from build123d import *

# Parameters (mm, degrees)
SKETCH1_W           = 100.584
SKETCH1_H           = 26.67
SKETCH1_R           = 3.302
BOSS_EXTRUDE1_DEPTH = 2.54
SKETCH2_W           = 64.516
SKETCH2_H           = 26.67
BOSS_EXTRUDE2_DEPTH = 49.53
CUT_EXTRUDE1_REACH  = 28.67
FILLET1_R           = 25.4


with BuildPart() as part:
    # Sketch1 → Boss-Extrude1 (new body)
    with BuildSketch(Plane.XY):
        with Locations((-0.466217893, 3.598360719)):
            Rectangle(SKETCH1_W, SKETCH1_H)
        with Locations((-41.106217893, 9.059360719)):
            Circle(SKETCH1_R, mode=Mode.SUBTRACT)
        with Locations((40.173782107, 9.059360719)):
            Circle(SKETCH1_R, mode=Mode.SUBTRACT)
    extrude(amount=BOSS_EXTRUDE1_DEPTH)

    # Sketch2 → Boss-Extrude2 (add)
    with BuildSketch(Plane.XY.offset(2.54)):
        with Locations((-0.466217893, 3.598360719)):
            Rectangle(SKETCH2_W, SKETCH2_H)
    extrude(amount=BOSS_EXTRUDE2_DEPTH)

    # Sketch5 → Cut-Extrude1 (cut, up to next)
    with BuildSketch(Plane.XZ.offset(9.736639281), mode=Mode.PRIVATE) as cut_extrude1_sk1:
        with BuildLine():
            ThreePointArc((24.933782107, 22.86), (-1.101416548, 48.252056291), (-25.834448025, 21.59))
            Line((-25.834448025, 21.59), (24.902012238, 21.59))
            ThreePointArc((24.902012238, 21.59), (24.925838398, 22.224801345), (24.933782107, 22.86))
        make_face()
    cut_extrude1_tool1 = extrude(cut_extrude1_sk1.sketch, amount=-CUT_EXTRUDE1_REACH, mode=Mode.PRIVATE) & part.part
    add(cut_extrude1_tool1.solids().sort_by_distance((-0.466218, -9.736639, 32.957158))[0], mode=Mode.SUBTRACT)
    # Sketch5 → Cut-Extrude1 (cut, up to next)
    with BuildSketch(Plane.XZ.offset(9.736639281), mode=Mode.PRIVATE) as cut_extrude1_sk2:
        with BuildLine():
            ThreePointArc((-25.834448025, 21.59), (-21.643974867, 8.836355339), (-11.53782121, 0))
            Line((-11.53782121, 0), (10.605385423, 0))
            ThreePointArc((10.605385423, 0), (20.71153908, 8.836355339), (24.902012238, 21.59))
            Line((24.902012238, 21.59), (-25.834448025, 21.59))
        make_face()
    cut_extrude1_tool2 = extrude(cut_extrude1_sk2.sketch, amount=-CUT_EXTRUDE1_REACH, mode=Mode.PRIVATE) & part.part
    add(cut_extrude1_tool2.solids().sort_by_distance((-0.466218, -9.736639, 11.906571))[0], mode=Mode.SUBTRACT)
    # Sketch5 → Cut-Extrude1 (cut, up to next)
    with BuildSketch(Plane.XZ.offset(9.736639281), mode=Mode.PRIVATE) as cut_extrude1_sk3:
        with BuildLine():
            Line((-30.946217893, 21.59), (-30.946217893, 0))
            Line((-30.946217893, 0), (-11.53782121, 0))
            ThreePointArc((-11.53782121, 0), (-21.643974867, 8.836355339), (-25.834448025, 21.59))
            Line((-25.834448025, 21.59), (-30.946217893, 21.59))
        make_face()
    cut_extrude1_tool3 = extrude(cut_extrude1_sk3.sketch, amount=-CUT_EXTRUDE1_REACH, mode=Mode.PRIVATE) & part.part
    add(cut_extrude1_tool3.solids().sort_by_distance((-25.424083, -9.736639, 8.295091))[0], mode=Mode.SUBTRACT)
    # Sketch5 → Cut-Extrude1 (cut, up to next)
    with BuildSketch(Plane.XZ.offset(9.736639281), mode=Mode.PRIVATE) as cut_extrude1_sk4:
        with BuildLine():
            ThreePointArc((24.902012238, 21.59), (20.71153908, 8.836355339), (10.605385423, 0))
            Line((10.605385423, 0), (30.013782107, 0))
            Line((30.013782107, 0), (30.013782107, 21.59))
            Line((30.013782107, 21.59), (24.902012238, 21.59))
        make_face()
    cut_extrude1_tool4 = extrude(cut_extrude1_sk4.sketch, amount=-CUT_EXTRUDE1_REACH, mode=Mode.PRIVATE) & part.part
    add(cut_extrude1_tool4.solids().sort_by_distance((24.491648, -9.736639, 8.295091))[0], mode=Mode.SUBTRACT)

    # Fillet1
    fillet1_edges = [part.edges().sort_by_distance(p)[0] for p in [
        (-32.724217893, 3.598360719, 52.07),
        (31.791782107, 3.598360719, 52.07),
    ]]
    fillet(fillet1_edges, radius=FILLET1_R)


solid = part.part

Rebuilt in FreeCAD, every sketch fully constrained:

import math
import FreeCAD as App
import Part
import Sketcher

V = App.Vector
Q = App.Units.Quantity


def edges_at(feature, points):
    """Names of the edges that pass closest to the given points."""
    edges = feature.Shape.Edges
    near = lambda p: min(range(len(edges)), key=lambda i: edges[i].distToShape(Part.Vertex(*p))[0])
    return sorted({f"Edge{near(p) + 1}" for p in points})


def add_polygon(sketch, points):
    """Adds a closed chain of lines whose ends are joined by coincident constraints."""
    first, n = sketch.GeometryCount, len(points)
    for a, b in zip(points, points[1:] + points[:1]):
        sketch.addGeometry(Part.LineSegment(App.Vector(*a, 0), App.Vector(*b, 0)), False)
    for i in range(n):
        sketch.addConstraint(Sketcher.Constraint("Coincident", first + i, 2, first + (i + 1) % n, 1))

doc = App.newDocument("Part")
body = doc.addObject("PartDesign::Body", "Body")

# Sketch on XY plane
sketch1 = body.newObject("Sketcher::SketchObject", "Sketch")
sketch1.AttachmentSupport = (doc.getObject("XY_Plane"), [""])
sketch1.MapMode = "FlatFace"
add_polygon(sketch1, [(-50.8, 16.9), (-50.8, -9.7), (49.8, -9.7), (49.8, 16.9)])  # lines 0-3
sketch1.addGeometry(Part.Circle(V(-41.1, 9.1, 0), V(0, 0, 1), 3.3), False)  # 4
sketch1.addGeometry(Part.Circle(V(40.2, 9.1, 0), V(0, 0, 1), 3.3), False)  # 5
sketch1.addConstraint([
    Sketcher.Constraint("Vertical", 0),
    Sketcher.Constraint("Horizontal", 1),
    Sketcher.Constraint("Vertical", 2),
    Sketcher.Constraint("Horizontal", 3),
    Sketcher.Constraint("Equal", 4, 5),
    Sketcher.Constraint("Horizontal", 4, 3, 5, 3),
    Sketcher.Constraint("Diameter", 4, Q("0.26 in")),
    Sketcher.Constraint("DistanceX", 1, 1, 1, 2, Q("3.96 in")),
    Sketcher.Constraint("DistanceY", 0, 2, 0, 1, Q("1.05 in")),
    Sketcher.Constraint("DistanceX", 4, 3, 5, 3, Q("3.2 in")),
    Sketcher.Constraint("DistanceX", 0, 2, 4, 3, Q("0.38 in")),
    Sketcher.Constraint("DistanceY", 0, 2, 4, 3, Q("0.74 in")),
    Sketcher.Constraint("DistanceY", -1, 1, 4, 3, Q("9.059361 mm")),
    Sketcher.Constraint("DistanceX", 4, 3, -1, 1, Q("41.106218 mm")),
])
pad1 = body.newObject("PartDesign::Pad", "Pad")
pad1.Profile = sketch1
pad1.Length = Q("0.1 in")

# Sketch on XY plane
sketch2 = body.newObject("Sketcher::SketchObject", "Sketch001")
sketch2.AttachmentSupport = (doc.getObject("XY_Plane"), [""])
sketch2.MapMode = "FlatFace"
sketch2.AttachmentOffset = App.Placement(V(0, 0, 0.1 * 25.4), App.Rotation())
add_polygon(sketch2, [(-33, 17), (-33, -10), (32, -10), (32, 17)])  # lines 0-3
sketch2.addConstraint([
    Sketcher.Constraint("Vertical", 0),
    Sketcher.Constraint("Horizontal", 1),
    Sketcher.Constraint("Vertical", 2),
    Sketcher.Constraint("Horizontal", 3),
    Sketcher.Constraint("DistanceX", 1, 1, 1, 2, Q("2.54 in")),
    Sketcher.Constraint("DistanceY", 0, 2, 0, 1, Q("1.05 in")),
    Sketcher.Constraint("DistanceY", 0, 2, -1, 1, Q("9.736639 mm")),
    Sketcher.Constraint("DistanceX", 0, 2, -1, 1, Q("32.724218 mm")),
])
pad2 = body.newObject("PartDesign::Pad", "Pad001")
pad2.Profile = sketch2
pad2.Length = Q("1.95 in")

# Sketch on XZ plane
sketch3 = body.newObject("Sketcher::SketchObject", "Sketch002")
sketch3.AttachmentSupport = (doc.getObject("XZ_Plane"), [""])
sketch3.MapMode = "FlatFace"
sketch3.AttachmentOffset = App.Placement(V(0, 0, 9.736639), App.Rotation())
sketch3.addGeometry([
    Part.ArcOfCircle(Part.Circle(V(-0.5, 22.9, 0), V(0, 0, 1), 25.4), math.radians(0), math.radians(183)),
    Part.LineSegment(V(-25.8, 21.6, 0), V(24.9, 21.6, 0)),
    Part.ArcOfCircle(Part.Circle(V(-0.5, 22.9, 0), V(0, 0, 1), 25.4), math.radians(-2.87), math.radians(0)),
], False)
sketch3.addConstraint([
    Sketcher.Constraint("Coincident", 0, 2, 1, 1),
    Sketcher.Constraint("Coincident", 1, 2, 2, 1),
    Sketcher.Constraint("Tangent", 2, 2, 0, 1),
    Sketcher.Constraint("Horizontal", 1),
    Sketcher.Constraint("Equal", 0, 2),
    Sketcher.Constraint("Horizontal", 0, 3, 2, 2),
    Sketcher.Constraint("Radius", 0, Q("1 in")),
    Sketcher.Constraint("DistanceY", -1, 1, 0, 3, Q("0.9 in")),
    Sketcher.Constraint("DistanceY", -1, 1, 0, 2, Q("0.85 in")),
    Sketcher.Constraint("DistanceX", 0, 2, -1, 1, Q("25.834448 mm")),
])
pocket1 = body.newObject("PartDesign::Pocket", "Pocket")
pocket1.Profile = sketch3
pocket1.Type = "UpToFirst"

# Sketch on XZ plane
sketch4 = body.newObject("Sketcher::SketchObject", "Sketch003")
sketch4.AttachmentSupport = (doc.getObject("XZ_Plane"), [""])
sketch4.MapMode = "FlatFace"
sketch4.AttachmentOffset = App.Placement(V(0, 0, 9.736639), App.Rotation())
sketch4.addGeometry([
    Part.ArcOfCircle(Part.Circle(V(0, 23, 0), V(0, 0, 1), 25), math.radians(-177), math.radians(-116)),
    Part.LineSegment(V(-12, 0, 0), V(11, 0, 0)),
    Part.ArcOfCircle(Part.Circle(V(0, 23, 0), V(0, 0, 1), 25), math.radians(-64), math.radians(-3)),
    Part.LineSegment(V(25, 22, 0), V(-26, 22, 0)),
], False)
sketch4.addConstraint([
    Sketcher.Constraint("Coincident", 0, 2, 1, 1),
    Sketcher.Constraint("Coincident", 1, 2, 2, 1),
    Sketcher.Constraint("Coincident", 2, 2, 3, 1),
    Sketcher.Constraint("Coincident", 3, 2, 0, 1),
    Sketcher.Constraint("Horizontal", 1),
    Sketcher.Constraint("Horizontal", 3),
    Sketcher.Constraint("Coincident", 2, 3, 0, 3),
    Sketcher.Constraint("Equal", 0, 2),
    Sketcher.Constraint("PointOnObject", 0, 2, -1),
    Sketcher.Constraint("Radius", 0, Q("1 in")),
    Sketcher.Constraint("DistanceY", -1, 1, 0, 3, Q("0.9 in")),
    Sketcher.Constraint("DistanceY", -1, 1, 2, 2, Q("0.85 in")),
    Sketcher.Constraint("DistanceX", 0, 2, -1, 1, Q("11.537821 mm")),
])
pocket2 = body.newObject("PartDesign::Pocket", "Pocket001")
pocket2.Profile = sketch4
pocket2.Type = "UpToFirst"

# Sketch on XZ plane
sketch5 = body.newObject("Sketcher::SketchObject", "Sketch004")
sketch5.AttachmentSupport = (doc.getObject("XZ_Plane"), [""])
sketch5.MapMode = "FlatFace"
sketch5.AttachmentOffset = App.Placement(V(0, 0, 9.736639), App.Rotation())
sketch5.addGeometry([
    Part.LineSegment(V(-31, 22, 0), V(-31, 0, 0)),
    Part.LineSegment(V(-31, 0, 0), V(-12, 0, 0)),
    Part.ArcOfCircle(Part.Circle(V(0, 23, 0), V(0, 0, 1), 25), math.radians(-177), math.radians(-116)),
    Part.LineSegment(V(-26, 22, 0), V(-31, 22, 0)),
], False)
sketch5.addConstraint([
    Sketcher.Constraint("Coincident", 0, 2, 1, 1),
    Sketcher.Constraint("Coincident", 1, 2, 2, 2),
    Sketcher.Constraint("Coincident", 2, 1, 3, 1),
    Sketcher.Constraint("Coincident", 3, 2, 0, 1),
    Sketcher.Constraint("Vertical", 0),
    Sketcher.Constraint("Horizontal", 1),
    Sketcher.Constraint("Horizontal", 3),
    Sketcher.Constraint("PointOnObject", 0, 2, -1),
    Sketcher.Constraint("Radius", 2, Q("1 in")),
    Sketcher.Constraint("DistanceY", 0, 2, 0, 1, Q("0.85 in")),
    Sketcher.Constraint("DistanceY", -1, 1, 2, 3, Q("0.9 in")),
    Sketcher.Constraint("DistanceX", 0, 2, 2, 3, Q("1.2 in")),
    Sketcher.Constraint("DistanceX", 1, 2, -1, 1, Q("11.537821 mm")),
])
pocket3 = body.newObject("PartDesign::Pocket", "Pocket002")
pocket3.Profile = sketch5
pocket3.Type = "UpToFirst"

# Sketch on XZ plane
sketch6 = body.newObject("Sketcher::SketchObject", "Sketch005")
sketch6.AttachmentSupport = (doc.getObject("XZ_Plane"), [""])
sketch6.MapMode = "FlatFace"
sketch6.AttachmentOffset = App.Placement(V(0, 0, 9.736639), App.Rotation())
sketch6.addGeometry([
    Part.ArcOfCircle(Part.Circle(V(0, 23, 0), V(0, 0, 1), 25), math.radians(-64), math.radians(-3)),
    Part.LineSegment(V(11, 0, 0), V(30, 0, 0)),
    Part.LineSegment(V(30, 0, 0), V(30, 22, 0)),
    Part.LineSegment(V(30, 22, 0), V(25, 22, 0)),
], False)
sketch6.addConstraint([
    Sketcher.Constraint("Coincident", 0, 1, 1, 1),
    Sketcher.Constraint("Coincident", 1, 2, 2, 1),
    Sketcher.Constraint("Coincident", 2, 2, 3, 1),
    Sketcher.Constraint("Coincident", 3, 2, 0, 2),
    Sketcher.Constraint("Horizontal", 1),
    Sketcher.Constraint("Vertical", 2),
    Sketcher.Constraint("Horizontal", 3),
    Sketcher.Constraint("PointOnObject", 0, 1, -1),
    Sketcher.Constraint("Radius", 0, Q("1 in")),
    Sketcher.Constraint("DistanceY", 2, 1, 2, 2, Q("0.85 in")),
    Sketcher.Constraint("DistanceY", -1, 1, 0, 3, Q("0.9 in")),
    Sketcher.Constraint("DistanceX", 0, 3, 1, 2, Q("1.2 in")),
    Sketcher.Constraint("DistanceX", 0, 3, -1, 1, Q("0.466218 mm")),
])
pocket4 = body.newObject("PartDesign::Pocket", "Pocket003")
pocket4.Profile = sketch6
pocket4.Type = "UpToFirst"
doc.recompute()

fillet = body.newObject("PartDesign::Fillet", "Fillet")
fillet.Base = (pocket4, edges_at(pocket4, [(-32.724, 3.598, 52.07), (31.792, 3.598, 52.07)]))
fillet.Radius = Q("1 in")

doc.recompute()
